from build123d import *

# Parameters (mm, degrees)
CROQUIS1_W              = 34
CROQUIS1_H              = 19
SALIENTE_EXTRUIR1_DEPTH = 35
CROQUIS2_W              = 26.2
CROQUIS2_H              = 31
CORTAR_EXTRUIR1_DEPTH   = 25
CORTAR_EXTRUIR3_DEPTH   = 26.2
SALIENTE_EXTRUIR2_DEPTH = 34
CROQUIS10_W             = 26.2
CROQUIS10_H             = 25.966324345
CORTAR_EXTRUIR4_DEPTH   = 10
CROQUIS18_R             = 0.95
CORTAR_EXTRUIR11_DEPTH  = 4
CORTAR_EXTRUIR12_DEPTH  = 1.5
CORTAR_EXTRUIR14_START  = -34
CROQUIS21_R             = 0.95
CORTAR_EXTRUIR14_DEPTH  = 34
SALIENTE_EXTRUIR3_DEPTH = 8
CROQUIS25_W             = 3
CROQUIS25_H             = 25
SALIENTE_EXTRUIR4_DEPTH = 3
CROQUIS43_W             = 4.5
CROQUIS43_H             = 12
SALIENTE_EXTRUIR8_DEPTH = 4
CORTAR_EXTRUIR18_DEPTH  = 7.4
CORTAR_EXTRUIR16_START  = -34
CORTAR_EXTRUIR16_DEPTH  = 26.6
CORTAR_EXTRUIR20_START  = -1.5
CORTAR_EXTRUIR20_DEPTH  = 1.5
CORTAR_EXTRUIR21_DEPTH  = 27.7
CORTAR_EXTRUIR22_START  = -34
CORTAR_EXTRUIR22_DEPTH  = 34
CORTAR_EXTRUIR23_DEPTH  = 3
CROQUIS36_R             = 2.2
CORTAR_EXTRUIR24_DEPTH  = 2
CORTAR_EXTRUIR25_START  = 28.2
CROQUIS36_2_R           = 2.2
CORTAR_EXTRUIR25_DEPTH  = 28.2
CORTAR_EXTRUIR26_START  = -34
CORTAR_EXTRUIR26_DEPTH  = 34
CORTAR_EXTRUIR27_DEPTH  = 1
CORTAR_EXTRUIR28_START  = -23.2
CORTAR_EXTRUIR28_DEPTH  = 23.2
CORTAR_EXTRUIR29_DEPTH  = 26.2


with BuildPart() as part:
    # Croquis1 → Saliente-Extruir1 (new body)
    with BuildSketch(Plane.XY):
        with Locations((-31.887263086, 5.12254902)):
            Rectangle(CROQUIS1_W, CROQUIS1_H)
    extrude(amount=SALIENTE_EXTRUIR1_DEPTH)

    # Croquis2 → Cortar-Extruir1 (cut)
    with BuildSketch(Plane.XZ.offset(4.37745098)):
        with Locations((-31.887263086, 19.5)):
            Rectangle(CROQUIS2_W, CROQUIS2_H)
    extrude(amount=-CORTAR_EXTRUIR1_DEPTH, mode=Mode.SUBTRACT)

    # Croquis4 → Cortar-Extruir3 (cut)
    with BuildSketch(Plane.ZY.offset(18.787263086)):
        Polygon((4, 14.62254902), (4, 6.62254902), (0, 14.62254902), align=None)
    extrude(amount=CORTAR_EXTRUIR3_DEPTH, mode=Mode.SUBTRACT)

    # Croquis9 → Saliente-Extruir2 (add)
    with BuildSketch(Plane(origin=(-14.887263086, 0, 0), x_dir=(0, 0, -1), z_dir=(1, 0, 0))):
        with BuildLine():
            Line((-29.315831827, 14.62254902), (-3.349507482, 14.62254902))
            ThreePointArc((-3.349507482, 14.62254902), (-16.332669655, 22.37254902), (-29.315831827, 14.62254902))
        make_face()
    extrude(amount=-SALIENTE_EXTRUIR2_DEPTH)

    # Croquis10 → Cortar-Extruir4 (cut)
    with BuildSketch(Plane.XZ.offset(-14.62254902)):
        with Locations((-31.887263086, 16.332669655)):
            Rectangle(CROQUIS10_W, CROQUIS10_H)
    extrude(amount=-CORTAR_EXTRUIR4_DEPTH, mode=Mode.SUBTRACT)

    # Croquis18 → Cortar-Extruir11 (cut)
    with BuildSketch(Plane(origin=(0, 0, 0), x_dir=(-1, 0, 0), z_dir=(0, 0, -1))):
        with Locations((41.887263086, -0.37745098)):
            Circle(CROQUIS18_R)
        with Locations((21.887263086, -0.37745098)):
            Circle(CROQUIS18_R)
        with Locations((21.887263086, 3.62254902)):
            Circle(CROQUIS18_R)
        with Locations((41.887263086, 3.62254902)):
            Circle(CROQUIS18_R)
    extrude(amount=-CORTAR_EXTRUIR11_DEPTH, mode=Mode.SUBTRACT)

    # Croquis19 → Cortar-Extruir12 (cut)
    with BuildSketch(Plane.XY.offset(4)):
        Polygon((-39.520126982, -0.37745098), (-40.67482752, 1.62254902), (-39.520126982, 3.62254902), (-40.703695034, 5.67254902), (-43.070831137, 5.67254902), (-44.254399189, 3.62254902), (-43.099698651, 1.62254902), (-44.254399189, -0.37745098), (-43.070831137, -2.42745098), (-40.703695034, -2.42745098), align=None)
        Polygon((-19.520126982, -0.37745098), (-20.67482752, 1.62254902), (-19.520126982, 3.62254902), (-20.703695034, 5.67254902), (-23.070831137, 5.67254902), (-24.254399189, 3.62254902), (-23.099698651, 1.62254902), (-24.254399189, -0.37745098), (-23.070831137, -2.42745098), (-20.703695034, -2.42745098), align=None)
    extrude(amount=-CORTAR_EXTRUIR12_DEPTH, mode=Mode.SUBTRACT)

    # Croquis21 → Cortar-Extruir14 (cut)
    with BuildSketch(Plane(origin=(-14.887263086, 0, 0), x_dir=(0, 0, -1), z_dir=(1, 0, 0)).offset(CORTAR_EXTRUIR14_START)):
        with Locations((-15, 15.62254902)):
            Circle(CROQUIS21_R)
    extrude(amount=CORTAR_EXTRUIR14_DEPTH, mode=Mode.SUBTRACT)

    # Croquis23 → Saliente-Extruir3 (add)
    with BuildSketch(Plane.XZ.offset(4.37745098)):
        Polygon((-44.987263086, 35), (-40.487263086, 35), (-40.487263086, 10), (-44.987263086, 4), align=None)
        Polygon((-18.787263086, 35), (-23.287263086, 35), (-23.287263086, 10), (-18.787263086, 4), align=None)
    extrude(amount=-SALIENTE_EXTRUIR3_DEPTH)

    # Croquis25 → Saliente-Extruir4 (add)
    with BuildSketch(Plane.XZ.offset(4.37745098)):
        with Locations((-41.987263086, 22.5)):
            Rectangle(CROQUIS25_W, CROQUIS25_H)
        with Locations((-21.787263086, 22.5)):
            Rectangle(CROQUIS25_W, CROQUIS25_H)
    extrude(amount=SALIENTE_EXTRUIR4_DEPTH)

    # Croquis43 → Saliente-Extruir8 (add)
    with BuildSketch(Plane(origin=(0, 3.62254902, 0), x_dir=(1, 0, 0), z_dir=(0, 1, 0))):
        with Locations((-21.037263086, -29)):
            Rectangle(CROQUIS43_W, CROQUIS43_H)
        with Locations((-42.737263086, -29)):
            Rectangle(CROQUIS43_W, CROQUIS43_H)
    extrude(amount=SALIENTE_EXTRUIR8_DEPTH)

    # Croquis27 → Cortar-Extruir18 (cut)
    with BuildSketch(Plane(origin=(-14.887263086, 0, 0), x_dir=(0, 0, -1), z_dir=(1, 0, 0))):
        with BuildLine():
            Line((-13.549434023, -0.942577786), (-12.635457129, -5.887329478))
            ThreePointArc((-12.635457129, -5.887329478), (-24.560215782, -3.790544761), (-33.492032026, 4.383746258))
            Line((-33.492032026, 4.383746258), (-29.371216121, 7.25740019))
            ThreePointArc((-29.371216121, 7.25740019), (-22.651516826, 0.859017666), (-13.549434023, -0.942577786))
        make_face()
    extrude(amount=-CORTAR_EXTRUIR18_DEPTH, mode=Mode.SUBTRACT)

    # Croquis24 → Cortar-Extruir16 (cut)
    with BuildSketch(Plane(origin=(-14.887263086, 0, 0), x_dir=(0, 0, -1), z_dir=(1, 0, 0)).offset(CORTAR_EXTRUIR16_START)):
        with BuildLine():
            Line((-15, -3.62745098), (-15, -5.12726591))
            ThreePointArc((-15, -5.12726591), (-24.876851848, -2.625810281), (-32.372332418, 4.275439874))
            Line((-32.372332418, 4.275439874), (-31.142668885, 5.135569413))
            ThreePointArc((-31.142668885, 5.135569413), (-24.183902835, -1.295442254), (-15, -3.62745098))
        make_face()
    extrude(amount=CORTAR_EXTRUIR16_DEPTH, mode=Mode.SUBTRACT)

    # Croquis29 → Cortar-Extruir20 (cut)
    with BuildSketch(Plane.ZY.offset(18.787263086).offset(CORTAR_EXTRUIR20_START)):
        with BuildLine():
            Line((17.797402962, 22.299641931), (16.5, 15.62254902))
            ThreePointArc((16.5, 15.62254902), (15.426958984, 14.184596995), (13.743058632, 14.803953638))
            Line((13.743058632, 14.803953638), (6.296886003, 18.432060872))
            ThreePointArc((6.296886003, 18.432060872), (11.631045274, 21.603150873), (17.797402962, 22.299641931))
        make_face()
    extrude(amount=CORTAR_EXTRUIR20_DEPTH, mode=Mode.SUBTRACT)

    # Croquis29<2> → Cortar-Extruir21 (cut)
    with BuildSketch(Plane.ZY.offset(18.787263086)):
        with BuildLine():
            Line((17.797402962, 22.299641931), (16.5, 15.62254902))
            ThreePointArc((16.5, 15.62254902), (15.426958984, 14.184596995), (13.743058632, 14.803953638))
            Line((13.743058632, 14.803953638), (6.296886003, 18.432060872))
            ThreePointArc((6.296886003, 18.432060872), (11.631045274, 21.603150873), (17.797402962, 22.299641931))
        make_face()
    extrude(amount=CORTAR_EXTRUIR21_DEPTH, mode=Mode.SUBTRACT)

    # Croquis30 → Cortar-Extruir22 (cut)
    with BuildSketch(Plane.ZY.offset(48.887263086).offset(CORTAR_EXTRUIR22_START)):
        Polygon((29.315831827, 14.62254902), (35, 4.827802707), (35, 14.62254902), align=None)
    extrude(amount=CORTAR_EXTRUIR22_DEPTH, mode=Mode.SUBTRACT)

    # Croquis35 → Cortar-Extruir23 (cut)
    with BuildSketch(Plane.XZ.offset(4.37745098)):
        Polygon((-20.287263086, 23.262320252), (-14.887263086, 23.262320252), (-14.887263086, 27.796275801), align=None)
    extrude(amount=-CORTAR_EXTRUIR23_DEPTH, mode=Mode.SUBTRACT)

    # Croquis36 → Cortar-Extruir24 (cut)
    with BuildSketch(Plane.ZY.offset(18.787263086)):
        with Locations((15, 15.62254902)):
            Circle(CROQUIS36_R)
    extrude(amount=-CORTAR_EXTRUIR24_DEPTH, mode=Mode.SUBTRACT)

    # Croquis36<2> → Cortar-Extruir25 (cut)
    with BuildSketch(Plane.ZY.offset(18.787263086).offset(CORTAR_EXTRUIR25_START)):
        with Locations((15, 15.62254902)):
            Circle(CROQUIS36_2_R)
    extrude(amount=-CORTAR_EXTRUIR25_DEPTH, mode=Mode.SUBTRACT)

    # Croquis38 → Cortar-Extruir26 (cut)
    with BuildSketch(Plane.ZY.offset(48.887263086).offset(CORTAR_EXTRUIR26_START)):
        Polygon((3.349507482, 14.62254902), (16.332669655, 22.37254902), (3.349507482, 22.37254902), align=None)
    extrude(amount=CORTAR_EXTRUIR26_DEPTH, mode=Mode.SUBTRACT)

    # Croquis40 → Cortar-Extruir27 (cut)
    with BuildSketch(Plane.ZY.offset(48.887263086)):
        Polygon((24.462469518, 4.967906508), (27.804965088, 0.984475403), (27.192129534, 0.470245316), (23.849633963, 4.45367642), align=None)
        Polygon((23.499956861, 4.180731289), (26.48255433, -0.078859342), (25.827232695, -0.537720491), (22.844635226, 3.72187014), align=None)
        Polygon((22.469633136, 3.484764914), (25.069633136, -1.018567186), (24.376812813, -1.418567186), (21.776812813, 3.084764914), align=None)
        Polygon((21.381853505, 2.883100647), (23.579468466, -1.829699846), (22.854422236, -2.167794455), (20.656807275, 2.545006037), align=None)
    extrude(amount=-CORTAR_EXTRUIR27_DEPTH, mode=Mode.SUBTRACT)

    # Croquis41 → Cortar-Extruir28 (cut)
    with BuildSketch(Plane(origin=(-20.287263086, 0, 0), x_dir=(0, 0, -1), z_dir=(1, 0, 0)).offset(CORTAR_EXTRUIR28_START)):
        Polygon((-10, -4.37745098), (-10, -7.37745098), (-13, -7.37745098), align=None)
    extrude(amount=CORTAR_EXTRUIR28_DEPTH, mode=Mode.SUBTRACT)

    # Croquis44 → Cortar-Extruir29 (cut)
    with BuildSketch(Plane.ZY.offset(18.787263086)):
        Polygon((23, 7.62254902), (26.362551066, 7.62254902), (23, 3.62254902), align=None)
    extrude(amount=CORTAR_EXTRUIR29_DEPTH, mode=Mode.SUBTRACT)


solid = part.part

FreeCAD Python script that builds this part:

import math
import FreeCAD as App
import Part
import Sketcher
from FreeCAD import Vector
Q = App.Units.Quantity


def add_polygon(sketch, points):
    """Adds a closed chain of lines whose ends are joined by coincident constraints."""
    first, n = sketch.GeometryCount, len(points)
    for a, b in zip(points, points[1:] + points[:1]):
        sketch.addGeometry(Part.LineSegment(App.Vector(*a, 0), App.Vector(*b, 0)), False)
    for i in range(n):
        sketch.addConstraint(Sketcher.Constraint("Coincident", first + i, 2, first + (i + 1) % n, 1))

doc = App.newDocument("Part")
body = doc.addObject("PartDesign::Body", "Body")

# Sketch on XY plane
sketch1 = body.newObject("Sketcher::SketchObject", "Sketch")
sketch1.AttachmentSupport = (doc.getObject("XY_Plane"), [""])
sketch1.MapMode = "FlatFace"
add_polygon(sketch1, [(-48.887263, 14.622549), (-48.887263, -4.377451), (-14.887263, -4.377451), (-14.887263, 14.622549)])  # lines 0-3
sketch1.addConstraint([
    Sketcher.Constraint("Vertical", 0),
    Sketcher.Constraint("Horizontal", 1),
    Sketcher.Constraint("Vertical", 2),
    Sketcher.Constraint("Horizontal", 3),
    Sketcher.Constraint("DistanceX", 1, 1, 1, 2, 34.0),
    Sketcher.Constraint("DistanceY", 0, 2, 0, 1, 19.0),
    Sketcher.Constraint("DistanceY", 0, 2, -1, 1, 4.377451),
    Sketcher.Constraint("DistanceX", 0, 2, -1, 1, 48.887263),
])
pad1 = body.newObject("PartDesign::Pad", "Pad")
pad1.Profile = sketch1
pad1.Length = 35

# Sketch on XZ plane
sketch2 = body.newObject("Sketcher::SketchObject", "Sketch001")
sketch2.AttachmentSupport = (doc.getObject("XZ_Plane"), [""])
sketch2.MapMode = "FlatFace"
sketch2.AttachmentOffset = App.Placement(Vector(0, 0, 4.377451), App.Rotation())
add_polygon(sketch2, [(-44.987263, 35), (-44.987263, 4), (-18.787263, 4), (-18.787263, 35)])  # lines 0-3
sketch2.addConstraint([
    Sketcher.Constraint("Vertical", 0),
    Sketcher.Constraint("Horizontal", 1),
    Sketcher.Constraint("Vertical", 2),
    Sketcher.Constraint("Horizontal", 3),
    Sketcher.Constraint("DistanceY", 0, 2, 0, 1, 31.0),
    Sketcher.Constraint("DistanceX", 1, 1, 1, 2, 26.2),
    Sketcher.Constraint("DistanceY", -1, 1, 0, 2, 4.0),
    Sketcher.Constraint("DistanceX", 0, 2, -1, 1, 44.987263),
])
pocket1 = body.newObject("PartDesign::Pocket", "Pocket")
pocket1.Profile = sketch2
pocket1.Length = 25

# Sketch on YZ plane
sketch3 = body.newObject("Sketcher::SketchObject", "Sketch002")
sketch3.AttachmentSupport = (doc.getObject("YZ_Plane"), [""])
sketch3.MapMode = "FlatFace"
sketch3.AttachmentOffset = App.Placement(Vector(0, 0, -18.787263), App.Rotation())
add_polygon(sketch3, [(6.622549, 4), (14.622549, 4), (14.622549, 0)])  # lines 0-2
sketch3.addConstraint([
    Sketcher.Constraint("Horizontal", 0),
    Sketcher.Constraint("Vertical", 1),
    Sketcher.Constraint("PointOnObject", 1, 2, -1),
    Sketcher.Constraint("DistanceX", 0, 1, 0, 2, 8.0),
    Sketcher.Constraint("DistanceY", 1, 2, 1, 1, 4.0),
    Sketcher.Constraint("DistanceX", -1, 1, 0, 2, 14.622549),
])
pocket2 = body.newObject("PartDesign::Pocket", "Pocket001")
pocket2.Profile = sketch3
pocket2.Length = 26.2

# Sketch on YZ plane
sketch4 = body.newObject("Sketcher::SketchObject", "Sketch003")
sketch4.AttachmentSupport = (doc.getObject("YZ_Plane"), [""])
sketch4.MapMode = "FlatFace"
sketch4.AttachmentOffset = App.Placement(Vector(0, 0, -14.887263), App.Rotation())
sketch4.addGeometry([
    Part.LineSegment(Vector(14.622549, 29.315832, 0), Vector(14.622549, 3.349507, 0)),
    Part.ArcOfCircle(Part.Circle(Vector(7.622549, 16.33267, 0), Vector(0, 0, 1), 14.75), math.radians(-61.668235), math.radians(61.668235)),
], False)
sketch4.addConstraint([
    Sketcher.Constraint("Coincident", 0, 1, 1, 2),
    Sketcher.Constraint("Coincident", 1, 1, 0, 2),
    Sketcher.Constraint("Vertical", 0),
    Sketcher.Constraint("Radius", 1, 14.75),
    Sketcher.Constraint("DistanceX", 1, 3, 0, 1, 7.0),
    Sketcher.Constraint("DistanceX", -1, 1, 1, 3, 7.622549),
    Sketcher.Constraint("DistanceY", -1, 1, 1, 3, 16.33267),
])
pad2 = body.newObject("PartDesign::Pad", "Pad001")
pad2.Profile = sketch4
pad2.Length = 34
pad2.Reversed = True

# Sketch on XZ plane
sketch5 = body.newObject("Sketcher::SketchObject", "Sketch004")
sketch5.AttachmentSupport = (doc.getObject("XZ_Plane"), [""])
sketch5.MapMode = "FlatFace"
sketch5.AttachmentOffset = App.Placement(Vector(0, 0, -14.622549), App.Rotation())
add_polygon(sketch5, [(-44.987263, 29.315832), (-44.987263, 3.349507), (-18.787263, 3.349507), (-18.787263, 29.315832)])  # lines 0-3
sketch5.addConstraint([
    Sketcher.Constraint("Vertical", 0),
    Sketcher.Constraint("Horizontal", 1),
    Sketcher.Constraint("Vertical", 2),
    Sketcher.Constraint("Horizontal", 3),
    Sketcher.Constraint("DistanceX", 1, 1, 1, 2, 26.2),
    Sketcher.Constraint("DistanceY", 0, 2, 0, 1, 25.966324),
    Sketcher.Constraint("DistanceY", -1, 1, 2, 2, 29.315832),
    Sketcher.Constraint("DistanceX", 0, 2, -1, 1, 44.987263),
])
pocket3 = body.newObject("PartDesign::Pocket", "Pocket002")
pocket3.Profile = sketch5
pocket3.Length = 10

# Sketch on XY plane
sketch6 = body.newObject("Sketcher::SketchObject", "Sketch005")
sketch6.AttachmentSupport = (doc.getObject("XY_Plane"), [""])
sketch6.MapMode = "FlatFace"
sketch6.addGeometry([
    Part.Circle(Vector(-41.887263, -0.377451, 0), Vector(0, 0, 1), 0.95),
    Part.Circle(Vector(-21.887263, -0.377451, 0), Vector(0, 0, 1), 0.95),
    Part.Circle(Vector(-21.887263, 3.622549, 0), Vector(0, 0, 1), 0.95),
    Part.Circle(Vector(-41.887263, 3.622549, 0), Vector(0, 0, 1), 0.95),
], False)
sketch6.addConstraint([
    Sketcher.Constraint("Equal", 0, 1),
    Sketcher.Constraint("Equal", 1, 2),
    Sketcher.Constraint("Equal", 2, 3),
    Sketcher.Constraint("Horizontal", 0, 3, 1, 3),
    Sketcher.Constraint("Horizontal", 2, 3, 3, 3),
    Sketcher.Constraint("Vertical", 1, 3, 2, 3),
    Sketcher.Constraint("Vertical", 0, 3, 3, 3),
    Sketcher.Constraint("Diameter", 0, 1.9),
    Sketcher.Constraint("DistanceX", 0, 3, 1, 3, 20.0),
    Sketcher.Constraint("DistanceY", 1, 3, 2, 3, 4.0),
    Sketcher.Constraint("DistanceY", 0, 3, -1, 1, 0.377451),
    Sketcher.Constraint("DistanceX", 0, 3, -1, 1, 41.887263),
])
pocket4 = body.newObject("PartDesign::Pocket", "Pocket003")
pocket4.Profile = sketch6
pocket4.Length = 4
pocket4.Reversed = True

# Sketch on XY plane
sketch7 = body.newObject("Sketcher::SketchObject", "Sketch006")
sketch7.AttachmentSupport = (doc.getObject("XY_Plane"), [""])
sketch7.MapMode = "FlatFace"
sketch7.AttachmentOffset = App.Placement(Vector(0, 0, 4), App.Rotation())
add_polygon(sketch7, [(-39.520127, -0.377451), (-40.674828, 1.622549), (-39.520127, 3.622549), (-40.703695, 5.672549), (-43.070831, 5.672549), (-44.254399, 3.622549), (-43.099699, 1.622549), (-44.254399, -0.377451), (-43.070831, -2.427451), (-40.703695, -2.427451)])  # lines 0-9
add_polygon(sketch7, [(-19.520127, -0.377451), (-20.674828, 1.622549), (-19.520127, 3.622549), (-20.703695, 5.672549), (-23.070831, 5.672549), (-24.254399, 3.622549), (-23.099699, 1.622549), (-24.254399, -0.377451), (-23.070831, -2.427451), (-20.703695, -2.427451)])  # lines 10-19
sketch7.addConstraint([
    Sketcher.Constraint("Horizontal", 3),
    Sketcher.Constraint("Horizontal", 8),
    Sketcher.Constraint("Horizontal", 13),
    Sketcher.Constraint("Horizontal", 18),
    Sketcher.Constraint("Parallel", 0, 2),
    Sketcher.Constraint("Parallel", 1, 4),
    Sketcher.Constraint("Parallel", 2, 5),
    Sketcher.Constraint("Parallel", 4, 6),
    Sketcher.Constraint("Parallel", 5, 7),
    Sketcher.Constraint("Parallel", 6, 9),
    Sketcher.Constraint("Parallel", 7, 10),
    Sketcher.Constraint("Parallel", 9, 11),
    Sketcher.Constraint("Parallel", 10, 12),
    Sketcher.Constraint("Parallel", 11, 14),
    Sketcher.Constraint("Parallel", 12, 15),
    Sketcher.Constraint("Parallel", 14, 16),
    Sketcher.Constraint("Parallel", 15, 17),
    Sketcher.Constraint("Parallel", 16, 19),
    Sketcher.Constraint("Horizontal", 1, 2, 4, 2),
    Sketcher.Constraint("Horizontal", 0, 2, 5, 2),
    Sketcher.Constraint("Horizontal", 6, 2, 9, 2),
    Sketcher.Constraint("Horizontal", 5, 2, 10, 2),
    Sketcher.Constraint("Horizontal", 4, 2, 11, 2),
    Sketcher.Constraint("Horizontal", 3, 2, 12, 2),
    Sketcher.Constraint("Horizontal", 11, 2, 14, 2),
    Sketcher.Constraint("Horizontal", 10, 2, 15, 2),
    Sketcher.Constraint("Horizontal", 9, 2, 16, 2),
    Sketcher.Constraint("Horizontal", 8, 2, 17, 2),
    Sketcher.Constraint("Horizontal", 16, 2, 19, 2),
    Sketcher.Constraint("Vertical", 4, 2, 6, 2),
    Sketcher.Constraint("Vertical", 3, 2, 7, 2),
    Sketcher.Constraint("Vertical", 2, 2, 8, 2),
    Sketcher.Constraint("Equal", 8, 13),
    Sketcher.Constraint("Angle", 0, Q("120 deg")),
    Sketcher.Constraint("DistanceY", 0, 2, 1, 2, 2.0),
    Sketcher.Constraint("DistanceX", 0, 2, 10, 2, 20.0),
    Sketcher.Constraint("DistanceY", 1, 2, 2, 2, 2.05),
    Sketcher.Constraint("DistanceX", 4, 2, -1, 1, 44.254399),
    Sketcher.Constraint("DistanceX", 3, 2, 3, 1, 2.367136),
    Sketcher.Constraint("DistanceY", -1, 1, 0, 2, 1.622549),
])
pocket5 = body.newObject("PartDesign::Pocket", "Pocket004")
pocket5.Profile = sketch7
pocket5.Length = 1.5

# Sketch on YZ plane
sketch8 = body.newObject("Sketcher::SketchObject", "Sketch007")
sketch8.AttachmentSupport = (doc.getObject("YZ_Plane"), [""])
sketch8.MapMode = "FlatFace"
sketch8.AttachmentOffset = App.Placement(Vector(0, 0, -48.887263), App.Rotation())
sketch8.addGeometry(Part.Circle(Vector(15.622549, 15, 0), Vector(0, 0, 1), 0.95), False)
sketch8.addConstraint([
    Sketcher.Constraint("Diameter", 0, 1.9),
    Sketcher.Constraint("DistanceY", -1, 1, 0, 3, 15.0),
    Sketcher.Constraint("DistanceX", -1, 1, 0, 3, 15.622549),
])
pocket6 = body.newObject("PartDesign::Pocket", "Pocket005")
pocket6.Profile = sketch8
pocket6.Length = 34
pocket6.Reversed = True

# Sketch on XZ plane
sketch9 = body.newObject("Sketcher::SketchObject", "Sketch008")
sketch9.AttachmentSupport = (doc.getObject("XZ_Plane"), [""])
sketch9.MapMode = "FlatFace"
sketch9.AttachmentOffset = App.Placement(Vector(0, 0, 4.377451), App.Rotation())
add_polygon(sketch9, [(-40.487263, 35), (-44.987263, 35), (-44.987263, 4), (-40.487263, 10)])  # lines 0-3
add_polygon(sketch9, [(-18.787263, 35), (-23.287263, 35), (-23.287263, 10), (-18.787263, 4)])  # lines 4-7
sketch9.addConstraint([
    Sketcher.Constraint("Horizontal", 0),
    Sketcher.Constraint("Vertical", 1),
    Sketcher.Constraint("Vertical", 3),
    Sketcher.Constraint("Horizontal", 4),
    Sketcher.Constraint("Vertical", 5),
    Sketcher.Constraint("Vertical", 7),
    Sketcher.Constraint("Horizontal", 3, 2, 4, 2),
    Sketcher.Constraint("Horizontal", 2, 2, 5, 2),
    Sketcher.Constraint("Horizontal", 1, 2, 6, 2),
    Sketcher.Constraint("Equal", 0, 4),
    Sketcher.Constraint("DistanceY", 1, 2, 1, 1, 31.0),
    Sketcher.Constraint("DistanceY", 3, 1, 3, 2, 25.0),
    Sketcher.Constraint("DistanceX", 0, 2, 0, 1, 4.5),
    Sketcher.Constraint("DistanceY", -1, 1, 0, 2, 35.0),
    Sketcher.Constraint("DistanceX", 3, 2, 4, 2, 17.2),
    Sketcher.Constraint("DistanceX", 0, 2, -1, 1, 44.987263),
])
pad3 = body.newObject("PartDesign::Pad", "Pad002")
pad3.Profile = sketch9
pad3.Length = 8
pad3.Reversed = True

# Sketch on XZ plane
sketch10 = body.newObject("Sketcher::SketchObject", "Sketch009")
sketch10.AttachmentSupport = (doc.getObject("XZ_Plane"), [""])
sketch10.MapMode = "FlatFace"
sketch10.AttachmentOffset = App.Placement(Vector(0, 0, 4.377451), App.Rotation())
add_polygon(sketch10, [(-43.487263, 35), (-43.487263, 10), (-40.487263, 10), (-40.487263, 35)])  # lines 0-3
add_polygon(sketch10, [(-23.287263, 35), (-23.287263, 10), (-20.287263, 10), (-20.287263, 35)])  # lines 4-7
sketch10.addConstraint([
    Sketcher.Constraint("Vertical", 0),
    Sketcher.Constraint("Horizontal", 1),
    Sketcher.Constraint("Vertical", 2),
    Sketcher.Constraint("Horizontal", 3),
    Sketcher.Constraint("Vertical", 4),
    Sketcher.Constraint("Horizontal", 5),
    Sketcher.Constraint("Vertical", 6),
    Sketcher.Constraint("Horizontal", 7),
    Sketcher.Constraint("Horizontal", 1, 2, 4, 2),
    Sketcher.Constraint("Horizontal", 3, 2, 6, 2),
    Sketcher.Constraint("Equal", 3, 5),
    Sketcher.Constraint("DistanceX", 1, 1, 1, 2, 3.0),
    Sketcher.Constraint("DistanceY", 0, 2, 0, 1, 25.0),
    Sketcher.Constraint("DistanceY", -1, 1, 0, 2, 10.0),
    Sketcher.Constraint("DistanceX", 1, 2, 4, 2, 17.2),
    Sketcher.Constraint("DistanceX", 0, 2, -1, 1, 43.487263),
])
pad4 = body.newObject("PartDesign::Pad", "Pad003")
pad4.Profile = sketch10
pad4.Length = 3

# Sketch on XZ plane
sketch11 = body.newObject("Sketcher::SketchObject", "Sketch010")
sketch11.AttachmentSupport = (doc.getObject("XZ_Plane"), [""])
sketch11.MapMode = "FlatFace"
sketch11.AttachmentOffset = App.Placement(Vector(0, 0, -3.622549), App.Rotation())
add_polygon(sketch11, [(-23.287263, 23), (-23.287263, 35), (-18.787263, 35), (-18.787263, 23)])  # lines 0-3
add_polygon(sketch11, [(-44.987263, 23), (-44.987263, 35), (-40.487263, 35), (-40.487263, 23)])  # lines 4-7
sketch11.addConstraint([
    Sketcher.Constraint("Vertical", 0),
    Sketcher.Constraint("Horizontal", 1),
    Sketcher.Constraint("Vertical", 2),
    Sketcher.Constraint("Horizontal", 3),
    Sketcher.Constraint("Vertical", 4),
    Sketcher.Constraint("Horizontal", 5),
    Sketcher.Constraint("Vertical", 6),
    Sketcher.Constraint("Horizontal", 7),
    Sketcher.Constraint("Horizontal", 1, 2, 4, 2),
    Sketcher.Constraint("Horizontal", 3, 2, 6, 2),
    Sketcher.Constraint("Equal", 3, 5),
    Sketcher.Constraint("DistanceY", 0, 1, 0, 2, 12.0),
    Sketcher.Constraint("DistanceX", 1, 1, 1, 2, 4.5),
    Sketcher.Constraint("DistanceY", -1, 1, 0, 2, 35.0),
    Sketcher.Constraint("DistanceX", 4, 2, 0, 2, 21.7),
    Sketcher.Constraint("DistanceX", 0, 2, -1, 1, 23.287263),
])
pad5 = body.newObject("PartDesign::Pad", "Pad004")
pad5.Profile = sketch11
pad5.Length = 4
pad5.Reversed = True

# Sketch on YZ plane
sketch12 = body.newObject("Sketcher::SketchObject", "Sketch011")
sketch12.AttachmentSupport = (doc.getObject("YZ_Plane"), [""])
sketch12.MapMode = "FlatFace"
sketch12.AttachmentOffset = App.Placement(Vector(0, 0, -14.887263), App.Rotation())
sketch12.addGeometry([
    Part.LineSegment(Vector(-5.887329, 12.635457, 0), Vector(-0.942578, 13.549434, 0)),
    Part.ArcOfCircle(Part.Circle(Vector(15.622549, 15, 0), Vector(0, 0, 1), 16.628517), math.radians(120.202684), math.radians(185.00448)),
    Part.LineSegment(Vector(7.2574, 29.371216, 0), Vector(4.383746, 33.492032, 0)),
    Part.ArcOfCircle(Part.Circle(Vector(15.622549, 15, 0), Vector(0, 0, 1), 21.639453), math.radians(121.289754), math.radians(186.273235)),
], False)
sketch12.addConstraint([
    Sketcher.Constraint("Coincident", 0, 2, 1, 2),
    Sketcher.Constraint("Coincident", 1, 1, 2, 1),
    Sketcher.Constraint("Coincident", 2, 2, 3, 1),
    Sketcher.Constraint("Coincident", 3, 2, 0, 1),
    Sketcher.Constraint("Coincident", 3, 3, 1, 3),
    Sketcher.Constraint("DistanceY", -1, 1, 1, 3, 15.0),
    Sketcher.Constraint("Angle", 2, Q("124.890019 deg")),
    Sketcher.Constraint("Radius", 1, 16.628517),
    Sketcher.Constraint("Radius", 3, 21.639453),
    Sketcher.Constraint("DistanceX", -1, 1, 1, 1, 7.2574),
    Sketcher.Constraint("DistanceY", 0, 2, 2, 2, 19.942598),
    Sketcher.Constraint("Distance", 0, 5.028511),
    Sketcher.Constraint("DistanceX", -1, 1, 1, 3, 15.622549),
])
pocket7 = body.newObject("PartDesign::Pocket", "Pocket006")
pocket7.Profile = sketch12
pocket7.Length = 7.4

# Sketch on YZ plane
sketch13 = body.newObject("Sketcher::SketchObject", "Sketch012")
sketch13.AttachmentSupport = (doc.getObject("YZ_Plane"), [""])
sketch13.MapMode = "FlatFace"
sketch13.AttachmentOffset = App.Placement(Vector(0, 0, -48.887263), App.Rotation())
sketch13.addGeometry([
    Part.LineSegment(Vector(-5.127266, 15, 0), Vector(-3.627451, 15, 0)),
    Part.ArcOfCircle(Part.Circle(Vector(15.622549, 15, 0), Vector(0, 0, 1), 19.25), math.radians(123.009505), math.radians(180)),
    Part.LineSegment(Vector(5.135569, 31.142669, 0), Vector(4.27544, 32.372332, 0)),
    Part.ArcOfCircle(Part.Circle(Vector(15.622549, 15, 0), Vector(0, 0, 1), 20.749815), math.radians(123.151417), math.radians(180)),
], False)
sketch13.addConstraint([
    Sketcher.Constraint("Coincident", 0, 2, 1, 2),
    Sketcher.Constraint("Coincident", 1, 1, 2, 1),
    Sketcher.Constraint("Coincident", 2, 2, 3, 1),
    Sketcher.Constraint("Coincident", 3, 2, 0, 1),
    Sketcher.Constraint("Horizontal", 0),
    Sketcher.Constraint("Coincident", 3, 3, 1, 3),
    Sketcher.Constraint("Horizontal", 3, 3, 0, 2),
    Sketcher.Constraint("Radius", 1, 19.25),
    Sketcher.Constraint("DistanceY", -1, 1, 1, 3, 15.0),
    Sketcher.Constraint("Radius", 3, 20.749815),
    Sketcher.Constraint("Distance", 2, 1.500632),
    Sketcher.Constraint("DistanceX", -1, 1, 1, 3, 15.622549),
    Sketcher.Constraint("DistanceX", -1, 1, 1, 1, 5.135569),
])
pocket8 = body.newObject("PartDesign::Pocket", "Pocket007")
pocket8.Profile = sketch13
pocket8.Length = 26.6
pocket8.Reversed = True

# Sketch on YZ plane
sketch14 = body.newObject("Sketcher::SketchObject", "Sketch013")
sketch14.AttachmentSupport = (doc.getObject("YZ_Plane"), [""])
sketch14.MapMode = "FlatFace"
sketch14.AttachmentOffset = App.Placement(Vector(0, 0, -17.287263), App.Rotation())
sketch14.addGeometry([
    Part.LineSegment(Vector(15.622549, 16.5, 0), Vector(22.299642, 17.797403, 0)),
    Part.ArcOfCircle(Part.Circle(Vector(7.622549, 16.33267, 0), Vector(0, 0, 1), 14.75), math.radians(-42.874292), math.radians(5.69909)),
    Part.LineSegment(Vector(18.432061, 6.296886, 0), Vector(14.803954, 13.743059, 0)),
    Part.ArcOfCircle(Part.Circle(Vector(15.622549, 15, 0), Vector(0, 0, 1), 1.5), math.radians(90), math.radians(236.925419)),
], False)
sketch14.addConstraint([
    Sketcher.Constraint("Coincident", 0, 2, 1, 2),
    Sketcher.Constraint("Coincident", 1, 1, 2, 1),
    Sketcher.Constraint("Coincident", 2, 2, 3, 2),
    Sketcher.Constraint("Coincident", 3, 1, 0, 1),
    Sketcher.Constraint("Radius", 3, 1.5),
    Sketcher.Constraint("Radius", 1, 14.75),
    Sketcher.Constraint("DistanceY", -1, 1, 3, 3, 15.0),
    Sketcher.Constraint("DistanceX", 1, 3, 3, 3, 8.0),
    Sketcher.Constraint("DistanceX", 1, 3, 3, 1, 8.0),
    Sketcher.Constraint("DistanceX", -1, 1, 1, 3, 7.622549),
    Sketcher.Constraint("DistanceY", -1, 1, 1, 3, 16.33267),
    Sketcher.Constraint("DistanceX", -1, 1, 0, 2, 22.299642),
    Sketcher.Constraint("DistanceX", -1, 1, 1, 1, 18.432061),
    Sketcher.Constraint("DistanceY", -1, 1, 2, 2, 13.743059),
])
pocket9 = body.newObject("PartDesign::Pocket", "Pocket008")
pocket9.Profile = sketch14
pocket9.Length = 1.5

# Sketch on YZ plane
sketch15 = body.newObject("Sketcher::SketchObject", "Sketch014")
sketch15.AttachmentSupport = (doc.getObject("YZ_Plane"), [""])
sketch15.MapMode = "FlatFace"
sketch15.AttachmentOffset = App.Placement(Vector(0, 0, -18.787263), App.Rotation())
sketch15.addGeometry([
    Part.LineSegment(Vector(15.622549, 16.5, 0), Vector(22.299642, 17.797403, 0)),
    Part.ArcOfCircle(Part.Circle(Vector(7.622549, 16.33267, 0), Vector(0, 0, 1), 14.75), math.radians(-42.874292), math.radians(5.69909)),
    Part.LineSegment(Vector(18.432061, 6.296886, 0), Vector(14.803954, 13.743059, 0)),
    Part.ArcOfCircle(Part.Circle(Vector(15.622549, 15, 0), Vector(0, 0, 1), 1.5), math.radians(90), math.radians(236.925419)),
], False)
sketch15.addConstraint([
    Sketcher.Constraint("Coincident", 0, 2, 1, 2),
    Sketcher.Constraint("Coincident", 1, 1, 2, 1),
    Sketcher.Constraint("Coincident", 2, 2, 3, 2),
    Sketcher.Constraint("Coincident", 3, 1, 0, 1),
    Sketcher.Constraint("Radius", 3, 1.5),
    Sketcher.Constraint("Radius", 1, 14.75),
    Sketcher.Constraint("DistanceY", -1, 1, 3, 3, 15.0),
    Sketcher.Constraint("DistanceX", 1, 3, 3, 3, 8.0),
    Sketcher.Constraint("DistanceX", 1, 3, 3, 1, 8.0),
    Sketcher.Constraint("DistanceX", -1, 1, 1, 3, 7.622549),
    Sketcher.Constraint("DistanceY", -1, 1, 1, 3, 16.33267),
    Sketcher.Constraint("DistanceX", -1, 1, 0, 2, 22.299642),
    Sketcher.Constraint("DistanceX", -1, 1, 1, 1, 18.432061),
    Sketcher.Constraint("DistanceY", -1, 1, 2, 2, 13.743059),
])
pocket10 = body.newObject("PartDesign::Pocket", "Pocket009")
pocket10.Profile = sketch15
pocket10.Length = 27.7

# Sketch on YZ plane
sketch16 = body.newObject("Sketcher::SketchObject", "Sketch015")
sketch16.AttachmentSupport = (doc.getObject("YZ_Plane"), [""])
sketch16.MapMode = "FlatFace"
sketch16.AttachmentOffset = App.Placement(Vector(0, 0, -14.887263), App.Rotation())
add_polygon(sketch16, [(14.622549, 29.315832), (4.827803, 35), (14.622549, 35)])  # lines 0-2
sketch16.addConstraint([
    Sketcher.Constraint("Horizontal", 1),
    Sketcher.Constraint("Vertical", 2),
    Sketcher.Constraint("DistanceY", -1, 1, 0, 2, 35.0),
    Sketcher.Constraint("DistanceY", 2, 2, 2, 1, 5.684168),
    Sketcher.Constraint("Distance", 0, 11.324611),
    Sketcher.Constraint("DistanceX", -1, 1, 1, 2, 14.622549),
])
pocket11 = body.newObject("PartDesign::Pocket", "Pocket010")
pocket11.Profile = sketch16
pocket11.Length = 34

# Sketch on XZ plane
sketch17 = body.newObject("Sketcher::SketchObject", "Sketch016")
sketch17.AttachmentSupport = (doc.getObject("XZ_Plane"), [""])
sketch17.MapMode = "FlatFace"
sketch17.AttachmentOffset = App.Placement(Vector(0, 0, 4.377451), App.Rotation())
add_polygon(sketch17, [(-20.287263, 23.26232), (-14.887263, 23.26232), (-14.887263, 27.796276)])  # lines 0-2
sketch17.addConstraint([
    Sketcher.Constraint("Horizontal", 0),
    Sketcher.Constraint("Vertical", 1),
    Sketcher.Constraint("DistanceX", 0, 1, 0, 2, 5.4),
    Sketcher.Constraint("Distance", 2, 7.051011),
    Sketcher.Constraint("DistanceY", -1, 1, 0, 2, 23.26232),
    Sketcher.Constraint("DistanceX", 0, 2, -1, 1, 14.887263),
])
pocket12 = body.newObject("PartDesign::Pocket", "Pocket011")
pocket12.Profile = sketch17
pocket12.Length = 3

# Sketch on YZ plane
sketch18 = body.newObject("Sketcher::SketchObject", "Sketch017")
sketch18.AttachmentSupport = (doc.getObject("YZ_Plane"), [""])
sketch18.MapMode = "FlatFace"
sketch18.AttachmentOffset = App.Placement(Vector(0, 0, -18.787263), App.Rotation())
sketch18.addGeometry(Part.Circle(Vector(15.622549, 15, 0), Vector(0, 0, 1), 2.2), False)
sketch18.addConstraint([
    Sketcher.Constraint("Diameter", 0, 4.4),
    Sketcher.Constraint("DistanceY", -1, 1, 0, 3, 15.0),
    Sketcher.Constraint("DistanceX", -1, 1, 0, 3, 15.622549),
])
pocket13 = body.newObject("PartDesign::Pocket", "Pocket012")
pocket13.Profile = sketch18
pocket13.Length = 2
pocket13.Reversed = True

# Sketch on YZ plane
sketch19 = body.newObject("Sketcher::SketchObject", "Sketch018")
sketch19.AttachmentSupport = (doc.getObject("YZ_Plane"), [""])
sketch19.MapMode = "FlatFace"
sketch19.AttachmentOffset = App.Placement(Vector(0, 0, -46.987263), App.Rotation())
sketch19.addGeometry(Part.Circle(Vector(15.622549, 15, 0), Vector(0, 0, 1), 2.2), False)
sketch19.addConstraint([
    Sketcher.Constraint("Diameter", 0, 4.4),
    Sketcher.Constraint("DistanceY", -1, 1, 0, 3, 15.0),
    Sketcher.Constraint("DistanceX", -1, 1, 0, 3, 15.622549),
])
pocket14 = body.newObject("PartDesign::Pocket", "Pocket013")
pocket14.Profile = sketch19
pocket14.Length = 28.2
pocket14.Reversed = True

# Sketch on YZ plane
sketch20 = body.newObject("Sketcher::SketchObject", "Sketch019")
sketch20.AttachmentSupport = (doc.getObject("YZ_Plane"), [""])
sketch20.MapMode = "FlatFace"
sketch20.AttachmentOffset = App.Placement(Vector(0, 0, -14.887263), App.Rotation())
add_polygon(sketch20, [(14.622549, 3.349507), (22.372549, 16.33267), (22.372549, 3.349507)])  # lines 0-2
sketch20.addConstraint([
    Sketcher.Constraint("Vertical", 1),
    Sketcher.Constraint("Horizontal", 2),
    Sketcher.Constraint("DistanceX", 2, 2, 2, 1, 7.75),
    Sketcher.Constraint("Distance", 0, 15.120351),
    Sketcher.Constraint("DistanceX", -1, 1, 0, 2, 22.372549),
    Sketcher.Constraint("DistanceY", -1, 1, 0, 2, 16.33267),
])
pocket15 = body.newObject("PartDesign::Pocket", "Pocket014")
pocket15.Profile = sketch20
pocket15.Length = 34

# Sketch on YZ plane
sketch21 = body.newObject("Sketcher::SketchObject", "Sketch020")
sketch21.AttachmentSupport = (doc.getObject("YZ_Plane"), [""])
sketch21.MapMode = "FlatFace"
sketch21.AttachmentOffset = App.Placement(Vector(0, 0, -48.887263), App.Rotation())
add_polygon(sketch21, [(0.984475, 27.804965), (4.967907, 24.46247), (4.453676, 23.849634), (0.470245, 27.19213)])  # lines 0-3
add_polygon(sketch21, [(-0.078859, 26.482554), (4.180731, 23.499957), (3.72187, 22.844635), (-0.53772, 25.827233)])  # lines 4-7
add_polygon(sketch21, [(-1.018567, 25.069633), (3.484765, 22.469633), (3.084765, 21.776813), (-1.418567, 24.376813)])  # lines 8-11
add_polygon(sketch21, [(-1.8297, 23.579468), (2.883101, 21.381854), (2.545006, 20.656807), (-2.167794, 22.854422)])  # lines 12-15
sketch21.addConstraint([
    Sketcher.Constraint("Perpendicular", 0, 1),
    Sketcher.Constraint("Perpendicular", 1, 2),
    Sketcher.Constraint("Perpendicular", 2, 3),
    Sketcher.Constraint("Perpendicular", 4, 5),
    Sketcher.Constraint("Perpendicular", 5, 6),
    Sketcher.Constraint("Perpendicular", 6, 7),
    Sketcher.Constraint("Perpendicular", 8, 9),
    Sketcher.Constraint("Perpendicular", 9, 10),
    Sketcher.Constraint("Perpendicular", 10, 11),
    Sketcher.Constraint("Perpendicular", 12, 13),
    Sketcher.Constraint("Perpendicular", 13, 14),
    Sketcher.Constraint("Perpendicular", 14, 15),
    Sketcher.Constraint("Equal", 2, 4),
    Sketcher.Constraint("Equal", 3, 5),
    Sketcher.Constraint("Equal", 6, 8),
    Sketcher.Constraint("Equal", 7, 9),
    Sketcher.Constraint("Equal", 10, 12),
    Sketcher.Constraint("Equal", 11, 13),
    Sketcher.Constraint("Angle", 0, Q("-40 deg")),
    Sketcher.Constraint("Angle", 4, Q("-35 deg")),
    Sketcher.Constraint("Angle", 8, Q("-30 deg")),
    Sketcher.Constraint("Angle", 12, Q("-25 deg")),
    Sketcher.Constraint("Distance", 0, 5.2),
    Sketcher.Constraint("Distance", 1, 0.8),
    Sketcher.Constraint("DistanceY", 8, 2, 1, 2, 1.380001),
    Sketcher.Constraint("DistanceY", 5, 2, 1, 2, 1.004999),
    Sketcher.Constraint("DistanceX", -1, 1, 12, 2, 2.883101),
    Sketcher.Constraint("DistanceY", -1, 1, 0, 2, 24.46247),
    Sketcher.Constraint("DistanceX", -1, 1, 4, 2, 4.180731),
    Sketcher.Constraint("DistanceY", -1, 1, 15, 2, 23.579468),
    Sketcher.Constraint("DistanceX", 8, 2, 1, 2, 0.968912),
    Sketcher.Constraint("DistanceX", 13, 2, 9, 2, 0.539759),
])
pocket16 = body.newObject("PartDesign::Pocket", "Pocket015")
pocket16.Profile = sketch21
pocket16.Length = 1
pocket16.Reversed = True

# Sketch on YZ plane
sketch22 = body.newObject("Sketcher::SketchObject", "Sketch021")
sketch22.AttachmentSupport = (doc.getObject("YZ_Plane"), [""])
sketch22.MapMode = "FlatFace"
sketch22.AttachmentOffset = App.Placement(Vector(0, 0, -43.487263), App.Rotation())
add_polygon(sketch22, [(-7.377451, 10), (-4.377451, 10), (-7.377451, 13)])  # lines 0-2
sketch22.addConstraint([
    Sketcher.Constraint("Horizontal", 0),
    Sketcher.Constraint("Vertical", 2),
    Sketcher.Constraint("Equal", 0, 2),
    Sketcher.Constraint("DistanceX", 0, 1, 0, 2, 3.0),
    Sketcher.Constraint("DistanceY", -1, 1, 0, 2, 10.0),
    Sketcher.Constraint("DistanceX", 0, 2, -1, 1, 4.377451),
])
pocket17 = body.newObject("PartDesign::Pocket", "Pocket016")
pocket17.Profile = sketch22
pocket17.Length = 23.2
pocket17.Reversed = True

# Sketch on YZ plane
sketch23 = body.newObject("Sketcher::SketchObject", "Sketch022")
sketch23.AttachmentSupport = (doc.getObject("YZ_Plane"), [""])
sketch23.MapMode = "FlatFace"
sketch23.AttachmentOffset = App.Placement(Vector(0, 0, -18.787263), App.Rotation())
add_polygon(sketch23, [(7.622549, 26.362551), (7.622549, 23), (3.622549, 23)])  # lines 0-2
sketch23.addConstraint([
    Sketcher.Constraint("Vertical", 0),
    Sketcher.Constraint("Horizontal", 1),
    Sketcher.Constraint("DistanceX", 1, 2, 1, 1, 4.0),
    Sketcher.Constraint("DistanceY", -1, 1, 0, 2, 23.0),
    Sketcher.Constraint("DistanceY", 0, 2, 0, 1, 3.362551),
    Sketcher.Constraint("DistanceX", -1, 1, 0, 2, 7.622549),
])
pocket18 = body.newObject("PartDesign::Pocket", "Pocket017")
pocket18.Profile = sketch23
pocket18.Length = 26.2

doc.recompute()
